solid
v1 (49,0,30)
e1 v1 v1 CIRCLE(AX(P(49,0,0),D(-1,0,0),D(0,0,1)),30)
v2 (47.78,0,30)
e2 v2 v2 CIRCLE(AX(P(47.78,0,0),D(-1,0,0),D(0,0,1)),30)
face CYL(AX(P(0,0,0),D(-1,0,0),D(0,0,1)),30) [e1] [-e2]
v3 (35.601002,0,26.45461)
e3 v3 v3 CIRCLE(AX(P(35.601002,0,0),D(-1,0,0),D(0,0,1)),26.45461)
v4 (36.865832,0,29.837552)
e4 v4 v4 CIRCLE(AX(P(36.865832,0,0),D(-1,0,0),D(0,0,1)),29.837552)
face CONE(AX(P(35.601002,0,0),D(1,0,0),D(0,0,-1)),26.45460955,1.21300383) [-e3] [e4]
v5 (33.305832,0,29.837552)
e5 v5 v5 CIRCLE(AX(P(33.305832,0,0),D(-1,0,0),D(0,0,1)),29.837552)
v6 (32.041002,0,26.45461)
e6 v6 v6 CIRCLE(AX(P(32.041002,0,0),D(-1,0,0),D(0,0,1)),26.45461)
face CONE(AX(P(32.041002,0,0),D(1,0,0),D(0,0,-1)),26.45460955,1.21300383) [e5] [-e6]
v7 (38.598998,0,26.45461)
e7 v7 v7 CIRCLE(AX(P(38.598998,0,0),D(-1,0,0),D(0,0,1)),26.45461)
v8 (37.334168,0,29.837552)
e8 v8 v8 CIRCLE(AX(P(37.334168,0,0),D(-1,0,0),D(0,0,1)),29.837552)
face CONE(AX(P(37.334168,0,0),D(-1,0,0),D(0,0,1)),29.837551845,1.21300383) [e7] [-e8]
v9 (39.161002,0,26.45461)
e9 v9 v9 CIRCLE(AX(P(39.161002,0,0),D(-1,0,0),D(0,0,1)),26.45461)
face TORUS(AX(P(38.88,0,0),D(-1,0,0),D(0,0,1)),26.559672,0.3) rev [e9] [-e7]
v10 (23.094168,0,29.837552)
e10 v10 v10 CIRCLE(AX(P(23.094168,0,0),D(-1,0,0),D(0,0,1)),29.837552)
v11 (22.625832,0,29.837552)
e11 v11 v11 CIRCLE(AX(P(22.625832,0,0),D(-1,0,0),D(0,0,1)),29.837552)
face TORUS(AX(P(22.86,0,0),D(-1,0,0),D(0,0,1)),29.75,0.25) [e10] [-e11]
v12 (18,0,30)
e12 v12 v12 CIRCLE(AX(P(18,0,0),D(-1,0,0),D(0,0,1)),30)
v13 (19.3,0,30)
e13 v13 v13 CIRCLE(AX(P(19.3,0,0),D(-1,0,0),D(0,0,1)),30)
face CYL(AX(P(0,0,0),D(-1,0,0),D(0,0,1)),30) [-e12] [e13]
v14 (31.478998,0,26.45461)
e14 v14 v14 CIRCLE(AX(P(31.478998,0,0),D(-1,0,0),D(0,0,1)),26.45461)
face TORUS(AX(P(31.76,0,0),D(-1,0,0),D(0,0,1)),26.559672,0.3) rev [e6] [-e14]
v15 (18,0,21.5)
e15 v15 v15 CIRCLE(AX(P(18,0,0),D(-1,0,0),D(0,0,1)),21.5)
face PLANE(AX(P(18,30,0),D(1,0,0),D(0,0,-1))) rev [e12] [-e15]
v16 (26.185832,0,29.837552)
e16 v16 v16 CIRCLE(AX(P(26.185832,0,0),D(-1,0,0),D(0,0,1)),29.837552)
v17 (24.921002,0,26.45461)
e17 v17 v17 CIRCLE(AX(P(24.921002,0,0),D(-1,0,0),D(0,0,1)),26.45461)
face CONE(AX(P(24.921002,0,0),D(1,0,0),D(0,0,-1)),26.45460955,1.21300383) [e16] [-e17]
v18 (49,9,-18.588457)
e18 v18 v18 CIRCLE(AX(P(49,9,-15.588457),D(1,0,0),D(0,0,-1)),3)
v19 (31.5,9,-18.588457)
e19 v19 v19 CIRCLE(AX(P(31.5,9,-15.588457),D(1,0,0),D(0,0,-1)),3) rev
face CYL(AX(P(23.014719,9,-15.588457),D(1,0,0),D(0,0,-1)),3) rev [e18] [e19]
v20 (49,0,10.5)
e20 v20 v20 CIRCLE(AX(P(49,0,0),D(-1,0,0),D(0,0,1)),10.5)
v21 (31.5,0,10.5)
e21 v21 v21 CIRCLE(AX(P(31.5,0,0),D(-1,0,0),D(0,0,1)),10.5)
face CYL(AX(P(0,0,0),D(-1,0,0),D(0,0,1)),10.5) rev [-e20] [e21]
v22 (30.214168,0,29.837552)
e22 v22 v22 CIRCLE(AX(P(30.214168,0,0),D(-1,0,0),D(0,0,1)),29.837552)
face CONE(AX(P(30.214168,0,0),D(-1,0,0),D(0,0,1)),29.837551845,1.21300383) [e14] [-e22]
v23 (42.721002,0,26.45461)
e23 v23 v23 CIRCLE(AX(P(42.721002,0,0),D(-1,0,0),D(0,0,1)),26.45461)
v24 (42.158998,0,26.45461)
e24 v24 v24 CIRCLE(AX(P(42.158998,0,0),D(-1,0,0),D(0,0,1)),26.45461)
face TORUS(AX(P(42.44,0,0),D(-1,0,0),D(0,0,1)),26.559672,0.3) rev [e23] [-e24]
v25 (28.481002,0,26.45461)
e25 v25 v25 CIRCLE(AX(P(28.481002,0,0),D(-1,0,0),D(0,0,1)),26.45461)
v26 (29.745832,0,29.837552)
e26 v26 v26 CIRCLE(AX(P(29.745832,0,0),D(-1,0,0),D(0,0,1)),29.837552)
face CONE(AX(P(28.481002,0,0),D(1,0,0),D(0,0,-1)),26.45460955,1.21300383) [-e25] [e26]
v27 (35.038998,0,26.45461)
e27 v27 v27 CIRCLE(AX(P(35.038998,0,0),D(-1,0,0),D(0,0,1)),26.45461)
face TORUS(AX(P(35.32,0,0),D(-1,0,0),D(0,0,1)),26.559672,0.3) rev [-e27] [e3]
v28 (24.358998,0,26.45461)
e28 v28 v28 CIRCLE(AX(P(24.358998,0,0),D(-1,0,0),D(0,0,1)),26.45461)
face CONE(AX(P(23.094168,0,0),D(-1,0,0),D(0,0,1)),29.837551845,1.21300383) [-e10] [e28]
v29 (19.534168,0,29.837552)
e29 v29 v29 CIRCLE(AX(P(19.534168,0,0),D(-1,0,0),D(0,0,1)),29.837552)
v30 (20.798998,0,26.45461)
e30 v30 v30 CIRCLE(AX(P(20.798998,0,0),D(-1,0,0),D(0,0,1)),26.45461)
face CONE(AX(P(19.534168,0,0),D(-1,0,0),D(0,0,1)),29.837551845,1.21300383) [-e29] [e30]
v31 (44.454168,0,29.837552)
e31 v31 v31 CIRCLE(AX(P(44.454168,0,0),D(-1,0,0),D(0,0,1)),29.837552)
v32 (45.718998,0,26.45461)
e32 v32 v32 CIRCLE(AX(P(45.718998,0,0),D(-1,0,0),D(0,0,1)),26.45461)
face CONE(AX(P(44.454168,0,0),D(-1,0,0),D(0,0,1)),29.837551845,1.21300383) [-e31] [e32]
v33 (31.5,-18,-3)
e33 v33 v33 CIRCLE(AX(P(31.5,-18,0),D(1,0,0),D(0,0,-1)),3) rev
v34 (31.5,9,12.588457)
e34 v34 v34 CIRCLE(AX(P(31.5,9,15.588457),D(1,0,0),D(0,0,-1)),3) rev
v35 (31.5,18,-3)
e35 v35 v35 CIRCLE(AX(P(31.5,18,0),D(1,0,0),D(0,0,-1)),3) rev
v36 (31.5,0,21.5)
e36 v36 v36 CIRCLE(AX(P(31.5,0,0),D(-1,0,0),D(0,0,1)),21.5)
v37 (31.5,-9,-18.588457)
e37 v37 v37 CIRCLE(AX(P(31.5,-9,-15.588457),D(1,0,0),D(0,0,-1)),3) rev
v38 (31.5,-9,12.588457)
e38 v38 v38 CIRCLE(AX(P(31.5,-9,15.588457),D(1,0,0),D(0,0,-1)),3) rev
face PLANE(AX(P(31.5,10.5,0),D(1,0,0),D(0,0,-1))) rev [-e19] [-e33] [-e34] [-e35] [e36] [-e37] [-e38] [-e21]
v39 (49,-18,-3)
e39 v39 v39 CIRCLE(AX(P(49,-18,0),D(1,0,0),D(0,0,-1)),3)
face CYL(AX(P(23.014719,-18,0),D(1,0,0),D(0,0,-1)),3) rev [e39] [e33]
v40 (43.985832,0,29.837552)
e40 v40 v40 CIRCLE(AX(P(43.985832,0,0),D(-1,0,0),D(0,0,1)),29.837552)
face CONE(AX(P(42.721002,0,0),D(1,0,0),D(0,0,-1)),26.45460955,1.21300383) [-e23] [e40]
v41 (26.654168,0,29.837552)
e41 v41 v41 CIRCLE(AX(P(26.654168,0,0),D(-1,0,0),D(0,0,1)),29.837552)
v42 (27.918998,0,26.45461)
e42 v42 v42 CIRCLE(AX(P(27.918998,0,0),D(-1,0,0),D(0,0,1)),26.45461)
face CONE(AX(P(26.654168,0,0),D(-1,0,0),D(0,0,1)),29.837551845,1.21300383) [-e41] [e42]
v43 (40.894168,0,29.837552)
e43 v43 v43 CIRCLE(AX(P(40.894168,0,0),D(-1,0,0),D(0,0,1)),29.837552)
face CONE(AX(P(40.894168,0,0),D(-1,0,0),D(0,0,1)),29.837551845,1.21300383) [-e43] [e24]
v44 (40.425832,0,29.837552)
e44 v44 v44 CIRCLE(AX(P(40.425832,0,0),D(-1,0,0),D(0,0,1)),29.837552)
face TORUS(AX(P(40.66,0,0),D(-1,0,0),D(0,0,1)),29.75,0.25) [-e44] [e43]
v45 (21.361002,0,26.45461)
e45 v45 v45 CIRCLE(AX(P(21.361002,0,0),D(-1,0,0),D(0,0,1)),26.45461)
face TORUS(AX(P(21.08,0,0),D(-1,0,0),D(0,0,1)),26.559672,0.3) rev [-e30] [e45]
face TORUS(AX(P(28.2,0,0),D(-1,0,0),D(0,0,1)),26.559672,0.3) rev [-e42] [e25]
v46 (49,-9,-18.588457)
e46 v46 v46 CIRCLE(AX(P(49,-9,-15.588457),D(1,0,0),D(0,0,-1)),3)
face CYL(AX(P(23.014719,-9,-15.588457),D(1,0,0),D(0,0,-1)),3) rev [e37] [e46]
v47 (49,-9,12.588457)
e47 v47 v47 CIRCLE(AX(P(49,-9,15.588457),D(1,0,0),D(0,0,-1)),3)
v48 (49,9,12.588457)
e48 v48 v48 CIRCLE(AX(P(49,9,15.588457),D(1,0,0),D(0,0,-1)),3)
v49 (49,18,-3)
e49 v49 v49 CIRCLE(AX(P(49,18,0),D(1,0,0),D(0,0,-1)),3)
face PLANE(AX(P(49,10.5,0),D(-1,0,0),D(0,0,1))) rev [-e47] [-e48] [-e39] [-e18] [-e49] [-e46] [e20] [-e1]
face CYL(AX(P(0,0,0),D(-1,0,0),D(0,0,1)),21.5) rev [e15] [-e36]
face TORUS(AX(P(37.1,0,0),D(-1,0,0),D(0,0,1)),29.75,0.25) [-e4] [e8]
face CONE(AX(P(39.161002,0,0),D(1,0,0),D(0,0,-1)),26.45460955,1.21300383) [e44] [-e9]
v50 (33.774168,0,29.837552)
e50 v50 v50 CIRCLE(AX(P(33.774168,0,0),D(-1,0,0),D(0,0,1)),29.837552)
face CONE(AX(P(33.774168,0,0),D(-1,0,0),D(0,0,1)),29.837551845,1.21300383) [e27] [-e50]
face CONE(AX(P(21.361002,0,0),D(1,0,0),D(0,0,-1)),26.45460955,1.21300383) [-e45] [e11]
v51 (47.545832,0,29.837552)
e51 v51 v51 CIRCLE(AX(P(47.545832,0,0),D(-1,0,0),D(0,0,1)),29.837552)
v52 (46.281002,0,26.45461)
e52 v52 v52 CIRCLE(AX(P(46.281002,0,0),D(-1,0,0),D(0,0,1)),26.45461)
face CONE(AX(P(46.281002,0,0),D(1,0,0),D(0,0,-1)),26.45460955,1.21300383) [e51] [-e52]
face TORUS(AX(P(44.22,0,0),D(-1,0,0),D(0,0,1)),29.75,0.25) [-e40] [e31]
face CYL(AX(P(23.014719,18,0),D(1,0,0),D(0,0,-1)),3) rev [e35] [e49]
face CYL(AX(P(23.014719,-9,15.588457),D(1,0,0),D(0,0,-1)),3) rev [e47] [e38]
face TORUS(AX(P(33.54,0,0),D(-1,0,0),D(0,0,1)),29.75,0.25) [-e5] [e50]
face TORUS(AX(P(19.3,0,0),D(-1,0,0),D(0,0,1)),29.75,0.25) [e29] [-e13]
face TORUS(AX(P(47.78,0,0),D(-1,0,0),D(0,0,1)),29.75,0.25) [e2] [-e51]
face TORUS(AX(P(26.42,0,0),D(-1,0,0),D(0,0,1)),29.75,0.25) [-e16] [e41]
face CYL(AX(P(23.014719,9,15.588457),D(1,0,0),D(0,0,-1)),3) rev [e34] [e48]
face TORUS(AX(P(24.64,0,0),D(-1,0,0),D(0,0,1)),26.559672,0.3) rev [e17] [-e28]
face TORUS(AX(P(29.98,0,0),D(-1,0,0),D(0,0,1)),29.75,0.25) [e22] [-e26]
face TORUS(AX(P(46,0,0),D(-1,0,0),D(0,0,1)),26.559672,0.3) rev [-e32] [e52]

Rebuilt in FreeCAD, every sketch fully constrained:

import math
import FreeCAD as App
import Part
import Sketcher

V = App.Vector
Q = App.Units.Quantity


def add_polygon(sketch, points):
    """Adds a closed chain of lines whose ends are joined by coincident constraints."""
    first, n = sketch.GeometryCount, len(points)
    for a, b in zip(points, points[1:] + points[:1]):
        sketch.addGeometry(Part.LineSegment(App.Vector(*a, 0), App.Vector(*b, 0)), False)
    for i in range(n):
        sketch.addConstraint(Sketcher.Constraint("Coincident", first + i, 2, first + (i + 1) % n, 1))

doc = App.newDocument("Part")
params = doc.addObject("Spreadsheet::Sheet", "Params")
for row, (alias, value) in enumerate([
    ("sketch1_width", "31 mm"),
    ("sketch1_height", "11 mm"),
    ("sketch1_width2", "13.5 mm"),
    ("sketch1_height2", "19.5 mm"),
    ("revolution_angle", "360 deg"),
    ("sketch2_radius", "0.3 mm"),
    ("sketch2_radius2", "0.25 mm"),
    ("sketch2_width", "3.56 mm"),
    ("groove_angle", "360 deg"),
    ("linearpattern_pitch", "3.56 mm"),
    ("sketch3_diameter", "6 mm"),
    ("pocket1_length", "17.5 mm"),
], start=1):
    params.set(f"A{row}", alias)
    params.set(f"B{row}", "=" + value)
    params.setAlias(f"B{row}", alias)

body = doc.addObject("PartDesign::Body", "Body")

sketch1 = doc.addObject("Sketcher::SketchObject", "Sketch")
body.addObject(sketch1)
sketch1.AttachmentSupport = (doc.XY_Plane, [""])
sketch1.MapMode = "FlatFace"
add_polygon(sketch1, [(49, 10), (49, 30), (18, 30), (18, 22), (32, 22), (32, 10)])
sketch1.addConstraint([
    Sketcher.Constraint("Vertical", 0),
    Sketcher.Constraint("Horizontal", 1),
    Sketcher.Constraint("Vertical", 2),
    Sketcher.Constraint("Horizontal", 3),
    Sketcher.Constraint("Vertical", 4),
    Sketcher.Constraint("Horizontal", 5),
    Sketcher.Constraint("DistanceX", 1, 2, 1, 1, 31.0),
    Sketcher.Constraint("DistanceY", 4, 2, 4, 1, 11.0),
    Sketcher.Constraint("DistanceX", 3, 1, 3, 2, 13.5),
    Sketcher.Constraint("DistanceY", 0, 1, 0, 2, 19.5),
    Sketcher.Constraint("DistanceX", -1, 1, 0, 2, 49.0),
    Sketcher.Constraint("DistanceY", -1, 1, 0, 2, 30.0),
])
sketch1.setExpression("Constraints[12]", "Params.sketch1_width")
sketch1.setExpression("Constraints[13]", "Params.sketch1_height")
sketch1.setExpression("Constraints[14]", "Params.sketch1_width2")
sketch1.setExpression("Constraints[15]", "Params.sketch1_height2")
revolution = doc.addObject("PartDesign::Revolution", "Revolution")
body.addObject(revolution)
revolution.Profile = sketch1
revolution.ReferenceAxis = (sketch1, ["H_Axis"])
revolution.setExpression("Angle", "Params.revolution_angle")

sketch2 = doc.addObject("Sketcher::SketchObject", "Sketch001")
body.addObject(sketch2)
sketch2.AttachmentSupport = (doc.XY_Plane, [""])
sketch2.MapMode = "FlatFace"
sketch2.addGeometry([
    Part.LineSegment(V(46.28, 26.45, 0), V(47.55, 29.84, 0)),
    Part.ArcOfCircle(Part.Circle(V(47.78, 29.75, 0), V(0, 0, 1), 0.25), math.radians(90), math.radians(160)),
    Part.LineSegment(V(47.78, 30, 0), V(44.22, 30, 0)),
    Part.ArcOfCircle(Part.Circle(V(44.22, 29.75, 0), V(0, 0, 1), 0.25), math.radians(20), math.radians(90)),
    Part.LineSegment(V(44.45, 29.84, 0), V(45.72, 26.45, 0)),
    Part.ArcOfCircle(Part.Circle(V(46, 26.56, 0), V(0, 0, 1), 0.3), math.radians(-160), math.radians(-20)),
], False)
sketch2.addConstraint([
    Sketcher.Constraint("Tangent", 0, 2, 1, 2),
    Sketcher.Constraint("Tangent", 1, 1, 2, 1),
    Sketcher.Constraint("Tangent", 2, 2, 3, 2),
    Sketcher.Constraint("Tangent", 3, 1, 4, 1),
    Sketcher.Constraint("Tangent", 4, 2, 5, 1),
    Sketcher.Constraint("Tangent", 5, 2, 0, 1),
    Sketcher.Constraint("Horizontal", 2),
    Sketcher.Constraint("Equal", 1, 3),
    Sketcher.Constraint("Horizontal", 0, 2, 3, 1),
    Sketcher.Constraint("Radius", 5, 0.3),
    Sketcher.Constraint("Radius", 1, 0.25),
    Sketcher.Constraint("DistanceX", -1, 1, 5, 3, 46.0),
    Sketcher.Constraint("DistanceY", -1, 1, 1, 1, 30.0),
    Sketcher.Constraint("Angle", 0, Q("69.5 deg")),
    Sketcher.Constraint("DistanceX", 2, 2, 2, 1, 3.56),
])
sketch2.setExpression("Constraints[9]", "Params.sketch2_radius")
sketch2.setExpression("Constraints[10]", "Params.sketch2_radius2")
sketch2.setExpression("Constraints[14]", "Params.sketch2_width")
groove = doc.addObject("PartDesign::Groove", "Groove")
body.addObject(groove)
groove.Profile = sketch2
groove.ReferenceAxis = (sketch2, ["H_Axis"])
groove.setExpression("Angle", "Params.groove_angle")
doc.recompute()

linearpattern = doc.addObject("PartDesign::LinearPattern", "LinearPattern")
body.addObject(linearpattern)
linearpattern.Originals = [groove]
linearpattern.Direction = (doc.X_Axis, [""])
linearpattern.Mode = "offset"
linearpattern.setExpression("Offset", "Params.linearpattern_pitch")
linearpattern.Occurrences = 8
linearpattern.Reversed = True
body.Tip = linearpattern

sketch3 = doc.addObject("Sketcher::SketchObject", "Sketch002")
body.addObject(sketch3)
sketch3.AttachmentSupport = (doc.YZ_Plane, [""])
sketch3.MapMode = "FlatFace"
sketch3.AttachmentOffset = App.Placement(V(0, 0, 49), App.Rotation())
sketch3.addGeometry([
    Part.Circle(V(18, 0, 0), V(0, 0, 1), 3),
    Part.Circle(V(9, -15.6, 0), V(0, 0, 1), 3),
    Part.Circle(V(-9, -15.6, 0), V(0, 0, 1), 3),
    Part.Circle(V(-18, 0, 0), V(0, 0, 1), 3),
    Part.Circle(V(-9, 15.6, 0), V(0, 0, 1), 3),
    Part.Circle(V(9, 15.6, 0), V(0, 0, 1), 3),
], False)
sketch3.addConstraint([
    Sketcher.Constraint("Equal", 0, 1),
    Sketcher.Constraint("Equal", 1, 2),
    Sketcher.Constraint("Equal", 2, 3),
    Sketcher.Constraint("Equal", 3, 4),
    Sketcher.Constraint("Equal", 4, 5),
    Sketcher.Constraint("Symmetric", 0, 3, 3, 3, -1, 1),
    Sketcher.Constraint("Symmetric", 1, 3, 4, 3, -1, 1),
    Sketcher.Constraint("Symmetric", 2, 3, 5, 3, -1, 1),
    Sketcher.Constraint("Symmetric", 1, 3, 2, 3, -2),
    Sketcher.Constraint("PointOnObject", 0, 3, -1),
    Sketcher.Constraint("Diameter", 0, 6.0),
    Sketcher.Constraint("DistanceX", -1, 1, 0, 3, 18.0),
    Sketcher.Constraint("DistanceX", -1, 1, 1, 3, 9.0),
    Sketcher.Constraint("DistanceY", 1, 3, -1, 1, 15.588457),
])
sketch3.setExpression("Constraints[10]", "Params.sketch3_diameter")
pocket1 = doc.addObject("PartDesign::Pocket", "Pocket")
body.addObject(pocket1)
pocket1.Profile = sketch3
pocket1.setExpression("Length", "Params.pocket1_length")

doc.recompute()
